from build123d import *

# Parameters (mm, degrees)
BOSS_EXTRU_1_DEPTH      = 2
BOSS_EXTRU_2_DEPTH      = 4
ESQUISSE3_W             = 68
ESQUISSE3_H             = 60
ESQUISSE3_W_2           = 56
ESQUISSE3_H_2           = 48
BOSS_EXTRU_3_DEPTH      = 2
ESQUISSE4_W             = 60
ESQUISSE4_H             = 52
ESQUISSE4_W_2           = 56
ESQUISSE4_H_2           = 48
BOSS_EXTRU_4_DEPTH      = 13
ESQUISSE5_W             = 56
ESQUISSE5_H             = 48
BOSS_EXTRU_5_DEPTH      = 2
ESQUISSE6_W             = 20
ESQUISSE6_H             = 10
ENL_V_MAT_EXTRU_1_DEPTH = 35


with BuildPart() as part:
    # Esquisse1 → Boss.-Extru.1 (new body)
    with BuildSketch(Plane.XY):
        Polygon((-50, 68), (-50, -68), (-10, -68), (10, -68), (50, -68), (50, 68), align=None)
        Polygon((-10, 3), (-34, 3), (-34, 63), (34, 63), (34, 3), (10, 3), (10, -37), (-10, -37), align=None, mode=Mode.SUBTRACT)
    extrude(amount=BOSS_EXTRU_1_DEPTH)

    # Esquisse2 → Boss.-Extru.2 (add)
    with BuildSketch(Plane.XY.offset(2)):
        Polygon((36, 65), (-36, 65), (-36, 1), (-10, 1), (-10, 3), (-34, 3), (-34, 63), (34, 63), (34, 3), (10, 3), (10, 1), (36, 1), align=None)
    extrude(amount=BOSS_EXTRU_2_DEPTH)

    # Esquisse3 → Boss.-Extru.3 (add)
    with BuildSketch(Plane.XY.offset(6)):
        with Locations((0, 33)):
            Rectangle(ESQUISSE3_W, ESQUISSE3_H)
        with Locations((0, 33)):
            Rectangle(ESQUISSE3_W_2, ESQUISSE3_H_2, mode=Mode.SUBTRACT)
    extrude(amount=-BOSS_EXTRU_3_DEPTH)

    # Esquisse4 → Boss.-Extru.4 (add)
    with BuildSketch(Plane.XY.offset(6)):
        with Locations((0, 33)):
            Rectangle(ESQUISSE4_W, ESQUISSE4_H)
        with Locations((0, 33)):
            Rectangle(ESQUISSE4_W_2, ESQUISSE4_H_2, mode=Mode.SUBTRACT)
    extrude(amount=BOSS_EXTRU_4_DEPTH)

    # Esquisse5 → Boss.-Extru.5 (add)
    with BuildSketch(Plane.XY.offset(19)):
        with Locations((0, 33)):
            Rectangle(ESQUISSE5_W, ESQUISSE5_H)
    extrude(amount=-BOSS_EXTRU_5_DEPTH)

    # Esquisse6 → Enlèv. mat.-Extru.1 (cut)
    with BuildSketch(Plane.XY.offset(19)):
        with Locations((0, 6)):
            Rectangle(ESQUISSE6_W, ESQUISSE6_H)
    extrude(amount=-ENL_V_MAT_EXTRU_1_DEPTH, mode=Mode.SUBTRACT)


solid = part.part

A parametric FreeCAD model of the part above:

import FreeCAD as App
import Part
import Sketcher
Q = App.Units.Quantity


def add_polygon(sketch, points):
    """Adds a closed chain of lines whose ends are joined by coincident constraints."""
    first, n = sketch.GeometryCount, len(points)
    for a, b in zip(points, points[1:] + points[:1]):
        sketch.addGeometry(Part.LineSegment(App.Vector(*a, 0), App.Vector(*b, 0)), False)
    for i in range(n):
        sketch.addConstraint(Sketcher.Constraint("Coincident", first + i, 2, first + (i + 1) % n, 1))

doc = App.newDocument("Part")
body = doc.addObject("PartDesign::Body", "Body")

sketch1 = body.newObject("Sketcher::SketchObject", "Sketch")
sketch1.AttachmentSupport = (doc.getObject("XY_Plane"), [""])
sketch1.MapMode = "FlatFace"
add_polygon(sketch1, [(-50, 68), (-50, -68), (50, -68), (50, 68)])
add_polygon(sketch1, [(-10, -37), (-10, 3), (-34, 3), (-34, 63), (34, 63), (34, 3), (10, 3), (10, -37)])
sketch1.addConstraint([
    Sketcher.Constraint("Vertical", 0),
    Sketcher.Constraint("Horizontal", 1),
    Sketcher.Constraint("Vertical", 2),
    Sketcher.Constraint("Horizontal", 3),
    Sketcher.Constraint("Vertical", 4),
    Sketcher.Constraint("Horizontal", 5),
    Sketcher.Constraint("Vertical", 6),
    Sketcher.Constraint("Horizontal", 7),
    Sketcher.Constraint("Vertical", 8),
    Sketcher.Constraint("Horizontal", 9),
    Sketcher.Constraint("Vertical", 10),
    Sketcher.Constraint("Horizontal", 11),
    Sketcher.Constraint("Symmetric", 0, 2, 2, 2, -1, 1),
    Sketcher.Constraint("Symmetric", 5, 2, 8, 2, -2),
    Sketcher.Constraint("Equal", 5, 9),
    Sketcher.Constraint("DistanceX", 1, 1, 1, 2, Q("100 mm")),
    Sketcher.Constraint("DistanceX", 5, 2, 5, 1, Q("24 mm")),
    Sketcher.Constraint("DistanceX", 7, 1, 7, 2, Q("68 mm")),
    Sketcher.Constraint("DistanceY", 0, 2, 0, 1, Q("136 mm")),
    Sketcher.Constraint("DistanceY", 4, 1, 4, 2, Q("40 mm")),
    Sketcher.Constraint("DistanceY", 6, 1, 6, 2, Q("60 mm")),
    Sketcher.Constraint("DistanceY", -1, 1, 4, 2, Q("3 mm")),
])
pad1 = body.newObject("PartDesign::Pad", "Pad")
pad1.Profile = sketch1
pad1.Length = 2

sketch2 = body.newObject("Sketcher::SketchObject", "Sketch001")
sketch2.AttachmentSupport = (doc.getObject("XY_Plane"), [""])
sketch2.MapMode = "FlatFace"
sketch2.AttachmentOffset = App.Placement(App.Vector(0, 0, 2), App.Rotation())
add_polygon(sketch2, [(36, 65), (-36, 65), (-36, 1), (-10, 1), (-10, 3), (-34, 3), (-34, 63), (34, 63), (34, 3), (10, 3), (10, 1), (36, 1)])
sketch2.addConstraint([
    Sketcher.Constraint("Horizontal", 0),
    Sketcher.Constraint("Vertical", 1),
    Sketcher.Constraint("Horizontal", 2),
    Sketcher.Constraint("Vertical", 3),
    Sketcher.Constraint("Horizontal", 4),
    Sketcher.Constraint("Vertical", 5),
    Sketcher.Constraint("Horizontal", 6),
    Sketcher.Constraint("Vertical", 7),
    Sketcher.Constraint("Horizontal", 8),
    Sketcher.Constraint("Vertical", 9),
    Sketcher.Constraint("Horizontal", 10),
    Sketcher.Constraint("Vertical", 11),
    Sketcher.Constraint("Symmetric", 4, 2, 7, 2, -2),
    Sketcher.Constraint("Symmetric", 2, 2, 9, 2, -2),
    Sketcher.Constraint("Equal", 2, 10),
    Sketcher.Constraint("DistanceX", 0, 2, 0, 1, Q("72 mm")),
    Sketcher.Constraint("DistanceX", 2, 1, 2, 2, Q("26 mm")),
    Sketcher.Constraint("DistanceX", 4, 2, 4, 1, Q("24 mm")),
    Sketcher.Constraint("DistanceY", 1, 2, 1, 1, Q("64 mm")),
    Sketcher.Constraint("DistanceY", 3, 1, 3, 2, Q("2 mm")),
    Sketcher.Constraint("DistanceY", 5, 1, 5, 2, Q("60 mm")),
    Sketcher.Constraint("DistanceY", -1, 1, 0, 2, Q("65 mm")),
])
pad2 = body.newObject("PartDesign::Pad", "Pad001")
pad2.Profile = sketch2
pad2.Length = 4

sketch3 = body.newObject("Sketcher::SketchObject", "Sketch002")
sketch3.AttachmentSupport = (doc.getObject("XY_Plane"), [""])
sketch3.MapMode = "FlatFace"
sketch3.AttachmentOffset = App.Placement(App.Vector(0, 0, 6), App.Rotation())
add_polygon(sketch3, [(-34, 63), (-34, 3), (34, 3), (34, 63)])
add_polygon(sketch3, [(28, 9), (-28, 9), (-28, 57), (28, 57)])
sketch3.addConstraint([
    Sketcher.Constraint("Vertical", 0),
    Sketcher.Constraint("Horizontal", 1),
    Sketcher.Constraint("Vertical", 2),
    Sketcher.Constraint("Horizontal", 3),
    Sketcher.Constraint("Horizontal", 4),
    Sketcher.Constraint("Vertical", 5),
    Sketcher.Constraint("Horizontal", 6),
    Sketcher.Constraint("Vertical", 7),
    Sketcher.Constraint("DistanceX", 1, 1, 1, 2, Q("68 mm")),
    Sketcher.Constraint("DistanceX", 4, 2, 4, 1, Q("56 mm")),
    Sketcher.Constraint("DistanceY", 0, 2, 0, 1, Q("60 mm")),
    Sketcher.Constraint("DistanceY", 5, 1, 5, 2, Q("48 mm")),
    Sketcher.Constraint("DistanceX", 0, 2, -1, 1, Q("34 mm")),
    Sketcher.Constraint("DistanceY", -1, 1, 0, 2, Q("3 mm")),
    Sketcher.Constraint("DistanceX", 4, 2, -1, 1, Q("28 mm")),
    Sketcher.Constraint("DistanceY", -1, 1, 4, 2, Q("9 mm")),
])
pad3 = body.newObject("PartDesign::Pad", "Pad002")
pad3.Profile = sketch3
pad3.Length = 2
pad3.Reversed = True

sketch4 = body.newObject("Sketcher::SketchObject", "Sketch003")
sketch4.AttachmentSupport = (doc.getObject("XY_Plane"), [""])
sketch4.MapMode = "FlatFace"
sketch4.AttachmentOffset = App.Placement(App.Vector(0, 0, 6), App.Rotation())
add_polygon(sketch4, [(-30, 59), (-30, 7), (30, 7), (30, 59)])
add_polygon(sketch4, [(28, 9), (-28, 9), (-28, 57), (28, 57)])
sketch4.addConstraint([
    Sketcher.Constraint("Vertical", 0),
    Sketcher.Constraint("Horizontal", 1),
    Sketcher.Constraint("Vertical", 2),
    Sketcher.Constraint("Horizontal", 3),
    Sketcher.Constraint("Horizontal", 4),
    Sketcher.Constraint("Vertical", 5),
    Sketcher.Constraint("Horizontal", 6),
    Sketcher.Constraint("Vertical", 7),
    Sketcher.Constraint("DistanceX", 1, 1, 1, 2, Q("60 mm")),
    Sketcher.Constraint("DistanceX", 4, 2, 4, 1, Q("56 mm")),
    Sketcher.Constraint("DistanceY", 0, 2, 0, 1, Q("52 mm")),
    Sketcher.Constraint("DistanceY", 5, 1, 5, 2, Q("48 mm")),
    Sketcher.Constraint("DistanceX", 0, 2, -1, 1, Q("30 mm")),
    Sketcher.Constraint("DistanceY", -1, 1, 0, 2, Q("7 mm")),
    Sketcher.Constraint("DistanceX", 4, 2, -1, 1, Q("28 mm")),
    Sketcher.Constraint("DistanceY", -1, 1, 4, 2, Q("9 mm")),
])
pad4 = body.newObject("PartDesign::Pad", "Pad003")
pad4.Profile = sketch4
pad4.Length = 13

sketch5 = body.newObject("Sketcher::SketchObject", "Sketch004")
sketch5.AttachmentSupport = (doc.getObject("XY_Plane"), [""])
sketch5.MapMode = "FlatFace"
sketch5.AttachmentOffset = App.Placement(App.Vector(0, 0, 19), App.Rotation())
add_polygon(sketch5, [(-28, 57), (-28, 9), (28, 9), (28, 57)])
sketch5.addConstraint([
    Sketcher.Constraint("Vertical", 0),
    Sketcher.Constraint("Horizontal", 1),
    Sketcher.Constraint("Vertical", 2),
    Sketcher.Constraint("Horizontal", 3),
    Sketcher.Constraint("DistanceX", 1, 1, 1, 2, Q("56 mm")),
    Sketcher.Constraint("DistanceY", 0, 2, 0, 1, Q("48 mm")),
    Sketcher.Constraint("DistanceX", 0, 2, -1, 1, Q("28 mm")),
    Sketcher.Constraint("DistanceY", -1, 1, 0, 2, Q("9 mm")),
])
pad5 = body.newObject("PartDesign::Pad", "Pad004")
pad5.Profile = sketch5
pad5.Length = 2
pad5.Reversed = True

sketch6 = body.newObject("Sketcher::SketchObject", "Sketch005")
sketch6.AttachmentSupport = (doc.getObject("XY_Plane"), [""])
sketch6.MapMode = "FlatFace"
sketch6.AttachmentOffset = App.Placement(App.Vector(0, 0, 19), App.Rotation())
add_polygon(sketch6, [(-10, 11), (-10, 1), (10, 1), (10, 11)])
sketch6.addConstraint([
    Sketcher.Constraint("Vertical", 0),
    Sketcher.Constraint("Horizontal", 1),
    Sketcher.Constraint("Vertical", 2),
    Sketcher.Constraint("Horizontal", 3),
    Sketcher.Constraint("DistanceX", 1, 1, 1, 2, Q("20 mm")),
    Sketcher.Constraint("DistanceY", 0, 2, 0, 1, Q("10 mm")),
    Sketcher.Constraint("DistanceX", 0, 2, -1, 1, Q("10 mm")),
    Sketcher.Constraint("DistanceY", -1, 1, 0, 2, Q("1 mm")),
])
pocket1 = body.newObject("PartDesign::Pocket", "Pocket")
pocket1.Profile = sketch6
pocket1.Length = 35

doc.recompute()
